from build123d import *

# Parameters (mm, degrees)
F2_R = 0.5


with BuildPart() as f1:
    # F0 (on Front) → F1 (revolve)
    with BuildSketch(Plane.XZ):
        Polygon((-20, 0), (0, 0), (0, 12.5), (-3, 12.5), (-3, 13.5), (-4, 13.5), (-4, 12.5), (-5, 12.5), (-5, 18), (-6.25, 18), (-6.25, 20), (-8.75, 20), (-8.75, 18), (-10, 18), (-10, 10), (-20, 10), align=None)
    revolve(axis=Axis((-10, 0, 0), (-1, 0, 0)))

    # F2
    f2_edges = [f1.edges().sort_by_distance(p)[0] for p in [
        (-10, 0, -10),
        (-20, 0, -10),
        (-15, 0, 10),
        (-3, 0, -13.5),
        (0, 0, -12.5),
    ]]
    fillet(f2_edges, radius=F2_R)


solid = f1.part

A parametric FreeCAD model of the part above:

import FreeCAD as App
import Part
import Sketcher
Q = App.Units.Quantity


def edges_at(feature, points):
    """Names of the edges that pass closest to the given points."""
    edges = feature.Shape.Edges
    near = lambda p: min(range(len(edges)), key=lambda i: edges[i].distToShape(Part.Vertex(*p))[0])
    return sorted({f"Edge{near(p) + 1}" for p in points})


def add_polygon(sketch, points):
    """Adds a closed chain of lines whose ends are joined by coincident constraints."""
    first, n = sketch.GeometryCount, len(points)
    for a, b in zip(points, points[1:] + points[:1]):
        sketch.addGeometry(Part.LineSegment(App.Vector(*a, 0), App.Vector(*b, 0)), False)
    for i in range(n):
        sketch.addConstraint(Sketcher.Constraint("Coincident", first + i, 2, first + (i + 1) % n, 1))

doc = App.newDocument("Part")
params = doc.addObject("Spreadsheet::Sheet", "Params")
for row, (alias, value) in enumerate([
    ("sketch1_width", "20 mm"),
    ("sketch1_width2", "3 mm"),
    ("sketch1_width3", "1 mm"),
    ("sketch1_width4", "10 mm"),
    ("sketch1_height", "2 mm"),
    ("revolution_angle", "360 deg"),
    ("fillet_radius", "0.5 mm"),
], start=1):
    params.set(f"A{row}", alias)
    params.set(f"B{row}", "=" + value)
    params.setAlias(f"B{row}", alias)

body = doc.addObject("PartDesign::Body", "Body")

sketch1 = doc.addObject("Sketcher::SketchObject", "Sketch")
body.addObject(sketch1)
sketch1.AttachmentSupport = (doc.XZ_Plane, [""])
sketch1.MapMode = "FlatFace"
add_polygon(sketch1, [(-20, 0), (0, 0), (0, 12.5), (-3, 12.5), (-3, 13.5), (-4, 13.5), (-4, 12.5), (-5, 12.5), (-5, 18), (-6.2, 18), (-6.2, 20), (-8.8, 20), (-8.8, 18), (-10, 18), (-10, 10), (-20, 10)])
sketch1.addConstraint(Sketcher.Constraint("Horizontal", 0))
sketch1.addConstraint(Sketcher.Constraint("Vertical", 1))
sketch1.addConstraint(Sketcher.Constraint("Horizontal", 2))
sketch1.addConstraint(Sketcher.Constraint("Vertical", 3))
sketch1.addConstraint(Sketcher.Constraint("Horizontal", 4))
sketch1.addConstraint(Sketcher.Constraint("Vertical", 5))
sketch1.addConstraint(Sketcher.Constraint("Horizontal", 6))
sketch1.addConstraint(Sketcher.Constraint("Vertical", 7))
sketch1.addConstraint(Sketcher.Constraint("Horizontal", 8))
sketch1.addConstraint(Sketcher.Constraint("Vertical", 9))
sketch1.addConstraint(Sketcher.Constraint("Horizontal", 10))
sketch1.addConstraint(Sketcher.Constraint("Vertical", 11))
sketch1.addConstraint(Sketcher.Constraint("Horizontal", 12))
sketch1.addConstraint(Sketcher.Constraint("Vertical", 13))
sketch1.addConstraint(Sketcher.Constraint("Horizontal", 14))
sketch1.addConstraint(Sketcher.Constraint("Vertical", 15))
sketch1.addConstraint(Sketcher.Constraint("Coincident", 0, 2, -1, 1))
sketch1.addConstraint(Sketcher.Constraint("Horizontal", 2, 2, 5, 2))
sketch1.addConstraint(Sketcher.Constraint("Horizontal", 8, 2, 11, 2))
sketch1.addConstraint(Sketcher.Constraint("Equal", 4, 6))
sketch1.addConstraint(Sketcher.Constraint("Equal", 8, 12))
sketch1.addConstraint(Sketcher.Constraint("Equal", 6, 3))
sketch1.addConstraint(Sketcher.Constraint("Equal", 14, 15))
sketch1.addConstraint(Sketcher.Constraint("DistanceX", 0, 1, 0, 2, Q("20 mm")))
sketch1.addConstraint(Sketcher.Constraint("DistanceX", 2, 2, 2, 1, Q("3 mm")))
sketch1.addConstraint(Sketcher.Constraint("DistanceX", 4, 2, 4, 1, Q("1 mm")))
sketch1.addConstraint(Sketcher.Constraint("DistanceX", 14, 2, 14, 1, Q("10 mm")))
sketch1.addConstraint(Sketcher.Constraint("DistanceY", 9, 1, 9, 2, Q("2 mm")))
sketch1.addConstraint(Sketcher.Constraint("DistanceY", 13, 2, 13, 1, Q("8 mm")))
sketch1.addConstraint(Sketcher.Constraint("DistanceX", 10, 2, 10, 1, Q("2.5 mm")))
sketch1.addConstraint(Sketcher.Constraint("DistanceY", 1, 1, 1, 2, Q("12.5 mm")))
sketch1.setExpression("Constraints[39]", "Params.sketch1_width")
sketch1.setExpression("Constraints[40]", "Params.sketch1_width2")
sketch1.setExpression("Constraints[41]", "Params.sketch1_width3")
sketch1.setExpression("Constraints[42]", "Params.sketch1_width4")
sketch1.setExpression("Constraints[43]", "Params.sketch1_height")
revolution = doc.addObject("PartDesign::Revolution", "Revolution")
body.addObject(revolution)
revolution.Profile = sketch1
revolution.ReferenceAxis = (sketch1, ["H_Axis"])
revolution.setExpression("Angle", "Params.revolution_angle")
doc.recompute()

fillet = doc.addObject("PartDesign::Fillet", "Fillet")
body.addObject(fillet)
fillet.Base = (revolution, edges_at(revolution, [
    (-10, 0, -10),
    (-20, 0, -10),
    (-15, 0, 10),
    (-3, 0, -13.5),
    (0, 0, -12.5),
]))
fillet.setExpression("Radius", "Params.fillet_radius")

doc.recompute()
